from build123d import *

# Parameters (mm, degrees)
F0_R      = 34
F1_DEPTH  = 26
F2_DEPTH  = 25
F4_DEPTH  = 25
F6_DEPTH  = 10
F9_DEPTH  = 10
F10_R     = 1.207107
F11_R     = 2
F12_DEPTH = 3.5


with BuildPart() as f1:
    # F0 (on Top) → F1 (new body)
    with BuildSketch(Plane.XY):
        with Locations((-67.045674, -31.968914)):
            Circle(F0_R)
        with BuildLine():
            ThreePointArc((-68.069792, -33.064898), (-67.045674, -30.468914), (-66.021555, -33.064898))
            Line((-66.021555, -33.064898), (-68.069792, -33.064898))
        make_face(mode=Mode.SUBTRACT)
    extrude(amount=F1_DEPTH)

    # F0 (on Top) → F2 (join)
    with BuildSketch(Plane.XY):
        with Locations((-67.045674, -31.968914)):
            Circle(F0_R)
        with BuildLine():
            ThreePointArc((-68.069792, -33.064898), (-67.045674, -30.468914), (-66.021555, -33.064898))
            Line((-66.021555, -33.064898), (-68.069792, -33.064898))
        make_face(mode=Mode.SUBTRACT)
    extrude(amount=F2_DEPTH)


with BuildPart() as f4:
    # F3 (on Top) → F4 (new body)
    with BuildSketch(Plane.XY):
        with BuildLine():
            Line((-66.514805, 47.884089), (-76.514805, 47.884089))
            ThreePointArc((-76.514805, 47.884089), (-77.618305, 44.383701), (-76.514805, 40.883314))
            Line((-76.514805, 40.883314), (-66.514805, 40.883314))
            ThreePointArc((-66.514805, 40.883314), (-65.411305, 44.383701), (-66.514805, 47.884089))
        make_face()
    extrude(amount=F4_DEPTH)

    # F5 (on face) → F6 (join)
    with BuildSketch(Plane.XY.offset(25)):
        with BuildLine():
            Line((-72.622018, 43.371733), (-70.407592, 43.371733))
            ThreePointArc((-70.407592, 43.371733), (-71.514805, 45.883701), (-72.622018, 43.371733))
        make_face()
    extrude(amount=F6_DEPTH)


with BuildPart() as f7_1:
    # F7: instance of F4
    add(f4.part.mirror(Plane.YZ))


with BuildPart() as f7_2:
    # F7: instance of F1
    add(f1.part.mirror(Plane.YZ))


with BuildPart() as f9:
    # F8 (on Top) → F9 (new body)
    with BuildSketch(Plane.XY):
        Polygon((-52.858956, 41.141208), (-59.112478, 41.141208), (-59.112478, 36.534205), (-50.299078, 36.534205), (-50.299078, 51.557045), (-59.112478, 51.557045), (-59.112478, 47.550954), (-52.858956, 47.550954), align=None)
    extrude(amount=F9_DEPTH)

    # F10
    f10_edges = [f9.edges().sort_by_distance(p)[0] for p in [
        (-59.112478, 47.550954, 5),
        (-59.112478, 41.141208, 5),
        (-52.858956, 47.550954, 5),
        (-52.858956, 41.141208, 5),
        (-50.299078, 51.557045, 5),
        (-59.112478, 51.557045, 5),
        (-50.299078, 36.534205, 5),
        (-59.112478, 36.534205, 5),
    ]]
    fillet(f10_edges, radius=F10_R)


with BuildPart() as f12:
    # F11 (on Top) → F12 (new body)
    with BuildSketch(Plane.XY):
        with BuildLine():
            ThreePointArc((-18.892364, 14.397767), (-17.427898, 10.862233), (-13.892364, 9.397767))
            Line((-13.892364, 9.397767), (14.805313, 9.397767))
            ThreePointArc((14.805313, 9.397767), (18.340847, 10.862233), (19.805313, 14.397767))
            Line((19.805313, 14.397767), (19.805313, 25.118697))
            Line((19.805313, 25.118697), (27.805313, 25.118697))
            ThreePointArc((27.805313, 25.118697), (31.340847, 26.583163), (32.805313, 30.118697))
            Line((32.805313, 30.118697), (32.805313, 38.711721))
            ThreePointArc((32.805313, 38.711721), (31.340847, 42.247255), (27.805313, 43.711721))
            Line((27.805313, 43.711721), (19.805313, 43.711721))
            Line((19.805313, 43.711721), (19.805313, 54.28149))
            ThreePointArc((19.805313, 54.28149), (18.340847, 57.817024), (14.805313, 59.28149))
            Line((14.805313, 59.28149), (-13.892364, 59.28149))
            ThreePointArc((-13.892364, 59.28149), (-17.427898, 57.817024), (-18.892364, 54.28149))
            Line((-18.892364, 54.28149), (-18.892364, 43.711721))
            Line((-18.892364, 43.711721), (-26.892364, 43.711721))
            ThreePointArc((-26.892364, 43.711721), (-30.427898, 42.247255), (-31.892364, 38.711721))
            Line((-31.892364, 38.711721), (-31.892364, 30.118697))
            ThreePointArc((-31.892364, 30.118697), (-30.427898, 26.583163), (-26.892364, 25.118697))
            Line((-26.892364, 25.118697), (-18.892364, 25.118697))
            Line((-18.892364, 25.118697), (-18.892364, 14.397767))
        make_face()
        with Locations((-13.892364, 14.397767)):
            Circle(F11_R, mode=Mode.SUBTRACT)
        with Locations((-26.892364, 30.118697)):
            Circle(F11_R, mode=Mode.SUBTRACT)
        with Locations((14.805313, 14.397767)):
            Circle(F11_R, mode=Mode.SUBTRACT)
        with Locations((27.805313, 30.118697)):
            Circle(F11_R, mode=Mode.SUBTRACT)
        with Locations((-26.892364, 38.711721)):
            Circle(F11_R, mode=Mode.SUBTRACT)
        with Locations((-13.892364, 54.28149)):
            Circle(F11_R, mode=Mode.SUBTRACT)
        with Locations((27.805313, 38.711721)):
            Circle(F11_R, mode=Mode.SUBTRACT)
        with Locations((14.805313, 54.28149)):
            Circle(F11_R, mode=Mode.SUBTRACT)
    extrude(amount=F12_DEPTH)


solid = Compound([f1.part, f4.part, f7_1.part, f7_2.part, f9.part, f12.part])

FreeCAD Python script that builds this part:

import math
import FreeCAD as App
import Part
import Sketcher

V = App.Vector


def edges_at(feature, points):
    """Names of the edges that pass closest to the given points."""
    edges = feature.Shape.Edges
    near = lambda p: min(range(len(edges)), key=lambda i: edges[i].distToShape(Part.Vertex(*p))[0])
    return sorted({f"Edge{near(p) + 1}" for p in points})

doc = App.newDocument("Part")
body = doc.addObject("PartDesign::Body", "Body")

sketch1 = body.newObject("Sketcher::SketchObject", "Sketch")
sketch1.AttachmentSupport = (doc.getObject("XY_Plane"), [""])
sketch1.MapMode = "FlatFace"
sketch1.addGeometry([
    Part.Circle(V(-67, -32, 0), V(0, 0, 1), 34),
    Part.LineSegment(V(-66, -33.1, 0), V(-68.1, -33.1, 0)),
    Part.ArcOfCircle(Part.Circle(V(-67, -32, 0), V(0, 0, 1), 1.5), math.radians(-47), math.radians(227)),
], False)
sketch1.addConstraint([
    Sketcher.Constraint("Coincident", 1, 1, 2, 1),
    Sketcher.Constraint("Coincident", 2, 2, 1, 2),
    Sketcher.Constraint("Horizontal", 1),
    Sketcher.Constraint("Coincident", 2, 3, 0, 3),
    Sketcher.Constraint("Diameter", 0, 68.0),
    Sketcher.Constraint("Radius", 2, 1.5),
    Sketcher.Constraint("DistanceY", 2, 2, -1, 1, 33.064898),
    Sketcher.Constraint("DistanceX", 1, 2, 1, 1, 2.048237),
    Sketcher.Constraint("DistanceX", 0, 3, -1, 1, 67.045674),
])
pad1 = body.newObject("PartDesign::Pad", "Pad")
pad1.Profile = sketch1
pad1.Length = 26

sketch2 = body.newObject("Sketcher::SketchObject", "Sketch001")
sketch2.AttachmentSupport = (doc.getObject("XY_Plane"), [""])
sketch2.MapMode = "FlatFace"
sketch2.addGeometry([
    Part.Circle(V(-67, -32, 0), V(0, 0, 1), 34),
    Part.LineSegment(V(-66, -33.1, 0), V(-68.1, -33.1, 0)),
    Part.ArcOfCircle(Part.Circle(V(-67, -32, 0), V(0, 0, 1), 1.5), math.radians(-47), math.radians(227)),
], False)
sketch2.addConstraint([
    Sketcher.Constraint("Coincident", 1, 1, 2, 1),
    Sketcher.Constraint("Coincident", 2, 2, 1, 2),
    Sketcher.Constraint("Horizontal", 1),
    Sketcher.Constraint("Coincident", 2, 3, 0, 3),
    Sketcher.Constraint("Diameter", 0, 68.0),
    Sketcher.Constraint("Radius", 2, 1.5),
    Sketcher.Constraint("DistanceY", 2, 2, -1, 1, 33.064898),
    Sketcher.Constraint("DistanceX", 1, 2, 1, 1, 2.048237),
    Sketcher.Constraint("DistanceX", 0, 3, -1, 1, 67.045674),
])
pad2 = body.newObject("PartDesign::Pad", "Pad001")
pad2.Profile = sketch2
pad2.Length = 25
body2 = doc.addObject("PartDesign::Body", "Body001")

sketch3 = body2.newObject("Sketcher::SketchObject", "Sketch002")
sketch3.AttachmentSupport = (doc.getObject("XY_Plane001"), [""])
sketch3.MapMode = "FlatFace"
sketch3.addGeometry([
    Part.LineSegment(V(-67, 48, 0), V(-77, 48, 0)),
    Part.ArcOfCircle(Part.Circle(V(-72, 44, 0), V(0, 0, 1), 6), math.radians(145), math.radians(215)),
    Part.LineSegment(V(-77, 41, 0), V(-67, 41, 0)),
    Part.ArcOfCircle(Part.Circle(V(-72, 44, 0), V(0, 0, 1), 6), math.radians(-35), math.radians(35)),
], False)
sketch3.addConstraint([
    Sketcher.Constraint("Coincident", 0, 2, 1, 1),
    Sketcher.Constraint("Coincident", 1, 2, 2, 1),
    Sketcher.Constraint("Coincident", 2, 2, 3, 1),
    Sketcher.Constraint("Coincident", 3, 2, 0, 1),
    Sketcher.Constraint("Horizontal", 0),
    Sketcher.Constraint("Horizontal", 2),
    Sketcher.Constraint("Coincident", 3, 3, 1, 3),
    Sketcher.Constraint("Equal", 1, 3),
    Sketcher.Constraint("Vertical", 0, 2, 1, 2),
    Sketcher.Constraint("DistanceX", 0, 2, 0, 1, 10.0),
    Sketcher.Constraint("Radius", 1, 6.1035),
    Sketcher.Constraint("DistanceY", -1, 1, 1, 3, 44.383702),
    Sketcher.Constraint("DistanceX", 1, 3, -1, 1, 71.514805),
])
pad3 = body2.newObject("PartDesign::Pad", "Pad002")
pad3.Profile = sketch3
pad3.Length = 25

sketch4 = body2.newObject("Sketcher::SketchObject", "Sketch003")
sketch4.AttachmentSupport = (doc.getObject("XY_Plane001"), [""])
sketch4.MapMode = "FlatFace"
sketch4.AttachmentOffset = App.Placement(V(0, 0, 25), App.Rotation())
sketch4.addGeometry([
    Part.LineSegment(V(-72.6, 43.4, 0), V(-70.4, 43.4, 0)),
    Part.ArcOfCircle(Part.Circle(V(-71.5, 44.4, 0), V(0, 0, 1), 1.5), math.radians(-42), math.radians(222)),
], False)
sketch4.addConstraint([
    Sketcher.Constraint("Coincident", 0, 1, 1, 2),
    Sketcher.Constraint("Coincident", 1, 1, 0, 2),
    Sketcher.Constraint("Horizontal", 0),
    Sketcher.Constraint("Radius", 1, 1.5),
    Sketcher.Constraint("DistanceY", -1, 1, 1, 3, 44.383701),
    Sketcher.Constraint("DistanceX", 0, 1, 0, 2, 2.214426),
    Sketcher.Constraint("DistanceX", 1, 3, -1, 1, 71.514805),
])
pad4 = body2.newObject("PartDesign::Pad", "Pad003")
pad4.Profile = sketch4
pad4.Length = 10
body3 = doc.addObject("PartDesign::Body", "Body002")
doc.recompute()

mirroring = doc.addObject("Part::Mirroring", "Mirroring")
mirroring.Source = body2
mirroring.Base = V(0, 0, 0)
mirroring.Normal = V(1, 0, 0)
body3.BaseFeature = mirroring
doc.recompute()
body4 = doc.addObject("PartDesign::Body", "Body003")
doc.recompute()

mirroring2 = doc.addObject("Part::Mirroring", "Mirroring001")
mirroring2.Source = body
mirroring2.Base = V(0, 0, 0)
mirroring2.Normal = V(1, 0, 0)
body4.BaseFeature = mirroring2
doc.recompute()
body5 = doc.addObject("PartDesign::Body", "Body004")

sketch5 = body5.newObject("Sketcher::SketchObject", "Sketch004")
sketch5.AttachmentSupport = (doc.getObject("XY_Plane004"), [""])
sketch5.MapMode = "FlatFace"
sketch5.addGeometry([
    Part.LineSegment(V(-52.9, 41.1, 0), V(-59.1, 41.1, 0)),
    Part.LineSegment(V(-59.1, 41.1, 0), V(-59.1, 36.5, 0)),
    Part.LineSegment(V(-59.1, 36.5, 0), V(-50.3, 36.5, 0)),
    Part.LineSegment(V(-50.3, 36.5, 0), V(-50.3, 51.6, 0)),
    Part.LineSegment(V(-50.3, 51.6, 0), V(-59.1, 51.6, 0)),
    Part.LineSegment(V(-59.1, 51.6, 0), V(-59.1, 47.6, 0)),
    Part.LineSegment(V(-59.1, 47.6, 0), V(-52.9, 47.6, 0)),
    Part.LineSegment(V(-52.9, 47.6, 0), V(-52.9, 41.1, 0)),
], False)
sketch5.addConstraint([
    Sketcher.Constraint("Coincident", 0, 2, 1, 1),
    Sketcher.Constraint("Coincident", 1, 2, 2, 1),
    Sketcher.Constraint("Coincident", 2, 2, 3, 1),
    Sketcher.Constraint("Coincident", 3, 2, 4, 1),
    Sketcher.Constraint("Coincident", 4, 2, 5, 1),
    Sketcher.Constraint("Coincident", 5, 2, 6, 1),
    Sketcher.Constraint("Coincident", 6, 2, 7, 1),
    Sketcher.Constraint("Coincident", 7, 2, 0, 1),
    Sketcher.Constraint("Horizontal", 0),
    Sketcher.Constraint("Vertical", 1),
    Sketcher.Constraint("Horizontal", 2),
    Sketcher.Constraint("Vertical", 3),
    Sketcher.Constraint("Horizontal", 4),
    Sketcher.Constraint("Vertical", 5),
    Sketcher.Constraint("Horizontal", 6),
    Sketcher.Constraint("Vertical", 7),
    Sketcher.Constraint("Vertical", 1, 2, 4, 2),
    Sketcher.Constraint("DistanceX", 2, 1, 2, 2, 8.8134),
    Sketcher.Constraint("DistanceY", 3, 1, 3, 2, 15.02284),
    Sketcher.Constraint("DistanceY", 5, 2, 5, 1, 4.006091),
    Sketcher.Constraint("DistanceX", 0, 2, 0, 1, 6.253522),
    Sketcher.Constraint("DistanceY", 1, 2, 1, 1, 4.607003),
    Sketcher.Constraint("DistanceX", 0, 2, -1, 1, 59.112478),
    Sketcher.Constraint("DistanceY", -1, 1, 0, 2, 41.141208),
])
pad5 = body5.newObject("PartDesign::Pad", "Pad004")
pad5.Profile = sketch5
pad5.Length = 10
doc.recompute()

fillet = body5.newObject("PartDesign::Fillet", "Fillet")
fillet.Base = (pad5, edges_at(pad5, [
    (-59.112, 47.551, 5),
    (-59.112, 41.141, 5),
    (-52.859, 47.551, 5),
    (-52.859, 41.141, 5),
    (-50.299, 51.557, 5),
    (-59.112, 51.557, 5),
    (-50.299, 36.534, 5),
    (-59.112, 36.534, 5),
]))
fillet.Radius = 1.207107
body6 = doc.addObject("PartDesign::Body", "Body005")

sketch6 = body6.newObject("Sketcher::SketchObject", "Sketch005")
sketch6.AttachmentSupport = (doc.getObject("XY_Plane005"), [""])
sketch6.MapMode = "FlatFace"
sketch6.addGeometry([
    Part.ArcOfCircle(Part.Circle(V(-13.9, 14.4, 0), V(0, 0, 1), 5), math.radians(180), math.radians(270)),
    Part.LineSegment(V(-13.9, 9.4, 0), V(14.8, 9.4, 0)),
    Part.ArcOfCircle(Part.Circle(V(14.8, 14.4, 0), V(0, 0, 1), 5), math.radians(-90), math.radians(0)),
    Part.LineSegment(V(19.8, 14.4, 0), V(19.8, 25.1, 0)),
    Part.LineSegment(V(19.8, 25.1, 0), V(27.8, 25.1, 0)),
    Part.ArcOfCircle(Part.Circle(V(27.8, 30.1, 0), V(0, 0, 1), 5), math.radians(-90), math.radians(0)),
    Part.LineSegment(V(32.8, 30.1, 0), V(32.8, 38.7, 0)),
    Part.ArcOfCircle(Part.Circle(V(27.8, 38.7, 0), V(0, 0, 1), 5), math.radians(0), math.radians(90)),
    Part.LineSegment(V(27.8, 43.7, 0), V(19.8, 43.7, 0)),
    Part.LineSegment(V(19.8, 43.7, 0), V(19.8, 54.3, 0)),
    Part.ArcOfCircle(Part.Circle(V(14.8, 54.3, 0), V(0, 0, 1), 5), math.radians(0), math.radians(90)),
    Part.LineSegment(V(14.8, 59.3, 0), V(-13.9, 59.3, 0)),
    Part.ArcOfCircle(Part.Circle(V(-13.9, 54.3, 0), V(0, 0, 1), 5), math.radians(90), math.radians(180)),
    Part.LineSegment(V(-18.9, 54.3, 0), V(-18.9, 43.7, 0)),
    Part.LineSegment(V(-18.9, 43.7, 0), V(-26.9, 43.7, 0)),
    Part.ArcOfCircle(Part.Circle(V(-26.9, 38.7, 0), V(0, 0, 1), 5), math.radians(90), math.radians(180)),
    Part.LineSegment(V(-31.9, 38.7, 0), V(-31.9, 30.1, 0)),
    Part.ArcOfCircle(Part.Circle(V(-26.9, 30.1, 0), V(0, 0, 1), 5), math.radians(180), math.radians(270)),
    Part.LineSegment(V(-26.9, 25.1, 0), V(-18.9, 25.1, 0)),
    Part.LineSegment(V(-18.9, 25.1, 0), V(-18.9, 14.4, 0)),
    Part.Circle(V(-13.9, 14.4, 0), V(0, 0, 1), 2),
    Part.Circle(V(-26.9, 30.1, 0), V(0, 0, 1), 2),
    Part.Circle(V(14.8, 14.4, 0), V(0, 0, 1), 2),
    Part.Circle(V(27.8, 30.1, 0), V(0, 0, 1), 2),
    Part.Circle(V(-26.9, 38.7, 0), V(0, 0, 1), 2),
    Part.Circle(V(-13.9, 54.3, 0), V(0, 0, 1), 2),
    Part.Circle(V(27.8, 38.7, 0), V(0, 0, 1), 2),
    Part.Circle(V(14.8, 54.3, 0), V(0, 0, 1), 2),
], False)
sketch6.addConstraint([
    Sketcher.Constraint("Tangent", 0, 2, 1, 1),
    Sketcher.Constraint("Tangent", 1, 2, 2, 1),
    Sketcher.Constraint("Tangent", 2, 2, 3, 1),
    Sketcher.Constraint("Coincident", 3, 2, 4, 1),
    Sketcher.Constraint("Tangent", 4, 2, 5, 1),
    Sketcher.Constraint("Tangent", 5, 2, 6, 1),
    Sketcher.Constraint("Tangent", 6, 2, 7, 1),
    Sketcher.Constraint("Tangent", 7, 2, 8, 1),
    Sketcher.Constraint("Coincident", 8, 2, 9, 1),
    Sketcher.Constraint("Tangent", 9, 2, 10, 1),
    Sketcher.Constraint("Tangent", 10, 2, 11, 1),
    Sketcher.Constraint("Tangent", 11, 2, 12, 1),
    Sketcher.Constraint("Tangent", 12, 2, 13, 1),
    Sketcher.Constraint("Coincident", 13, 2, 14, 1),
    Sketcher.Constraint("Tangent", 14, 2, 15, 1),
    Sketcher.Constraint("Tangent", 15, 2, 16, 1),
    Sketcher.Constraint("Tangent", 16, 2, 17, 1),
    Sketcher.Constraint("Tangent", 17, 2, 18, 1),
    Sketcher.Constraint("Coincident", 18, 2, 19, 1),
    Sketcher.Constraint("Tangent", 19, 2, 0, 1),
    Sketcher.Constraint("Horizontal", 1),
    Sketcher.Constraint("Vertical", 3),
    Sketcher.Constraint("Horizontal", 4),
    Sketcher.Constraint("Vertical", 6),
    Sketcher.Constraint("Horizontal", 8),
    Sketcher.Constraint("Vertical", 9),
    Sketcher.Constraint("Horizontal", 11),
    Sketcher.Constraint("Vertical", 13),
    Sketcher.Constraint("Horizontal", 14),
    Sketcher.Constraint("Vertical", 16),
    Sketcher.Constraint("Horizontal", 18),
    Sketcher.Constraint("Vertical", 19),
    Sketcher.Constraint("Coincident", 20, 3, 0, 3),
    Sketcher.Constraint("Coincident", 21, 3, 17, 3),
    Sketcher.Constraint("Coincident", 22, 3, 2, 3),
    Sketcher.Constraint("Coincident", 23, 3, 5, 3),
    Sketcher.Constraint("Coincident", 24, 3, 15, 3),
    Sketcher.Constraint("Coincident", 25, 3, 12, 3),
    Sketcher.Constraint("Coincident", 26, 3, 7, 3),
    Sketcher.Constraint("Coincident", 27, 3, 10, 3),
    Sketcher.Constraint("Equal", 0, 2),
    Sketcher.Constraint("Equal", 2, 5),
    Sketcher.Constraint("Equal", 5, 7),
    Sketcher.Constraint("Equal", 7, 10),
    Sketcher.Constraint("Equal", 10, 12),
    Sketcher.Constraint("Equal", 12, 15),
    Sketcher.Constraint("Equal", 15, 17),
    Sketcher.Constraint("Equal", 20, 21),
    Sketcher.Constraint("Equal", 21, 22),
    Sketcher.Constraint("Equal", 22, 23),
    Sketcher.Constraint("Equal", 23, 24),
    Sketcher.Constraint("Equal", 24, 25),
    Sketcher.Constraint("Equal", 25, 26),
    Sketcher.Constraint("Equal", 26, 27),
    Sketcher.Constraint("Horizontal", 7, 3, 15, 3),
    Sketcher.Constraint("Horizontal", 5, 3, 17, 3),
    Sketcher.Constraint("Vertical", 2, 3, 10, 3),
    Sketcher.Constraint("Vertical", 0, 3, 12, 3),
    Sketcher.Constraint("Equal", 8, 14),
    Sketcher.Constraint("Diameter", 20, 4.0),
    Sketcher.Constraint("Radius", 0, 5.0),
    Sketcher.Constraint("DistanceX", 4, 1, 4, 2, 8.0),
    Sketcher.Constraint("DistanceY", 3, 1, 3, 2, 10.72093),
    Sketcher.Constraint("DistanceY", 9, 1, 9, 2, 10.569769),
    Sketcher.Constraint("DistanceX", 1, 1, 1, 2, 28.697677),
    Sketcher.Constraint("DistanceY", 6, 1, 6, 2, 8.593024),
    Sketcher.Constraint("DistanceY", -1, 1, 7, 3, 38.711721),
    Sketcher.Constraint("DistanceX", 0, 3, -1, 1, 13.892364),
])
pad6 = body6.newObject("PartDesign::Pad", "Pad005")
pad6.Profile = sketch6
pad6.Length = 3.5
mirroring.Visibility = False
mirroring2.Visibility = False

doc.recompute()
